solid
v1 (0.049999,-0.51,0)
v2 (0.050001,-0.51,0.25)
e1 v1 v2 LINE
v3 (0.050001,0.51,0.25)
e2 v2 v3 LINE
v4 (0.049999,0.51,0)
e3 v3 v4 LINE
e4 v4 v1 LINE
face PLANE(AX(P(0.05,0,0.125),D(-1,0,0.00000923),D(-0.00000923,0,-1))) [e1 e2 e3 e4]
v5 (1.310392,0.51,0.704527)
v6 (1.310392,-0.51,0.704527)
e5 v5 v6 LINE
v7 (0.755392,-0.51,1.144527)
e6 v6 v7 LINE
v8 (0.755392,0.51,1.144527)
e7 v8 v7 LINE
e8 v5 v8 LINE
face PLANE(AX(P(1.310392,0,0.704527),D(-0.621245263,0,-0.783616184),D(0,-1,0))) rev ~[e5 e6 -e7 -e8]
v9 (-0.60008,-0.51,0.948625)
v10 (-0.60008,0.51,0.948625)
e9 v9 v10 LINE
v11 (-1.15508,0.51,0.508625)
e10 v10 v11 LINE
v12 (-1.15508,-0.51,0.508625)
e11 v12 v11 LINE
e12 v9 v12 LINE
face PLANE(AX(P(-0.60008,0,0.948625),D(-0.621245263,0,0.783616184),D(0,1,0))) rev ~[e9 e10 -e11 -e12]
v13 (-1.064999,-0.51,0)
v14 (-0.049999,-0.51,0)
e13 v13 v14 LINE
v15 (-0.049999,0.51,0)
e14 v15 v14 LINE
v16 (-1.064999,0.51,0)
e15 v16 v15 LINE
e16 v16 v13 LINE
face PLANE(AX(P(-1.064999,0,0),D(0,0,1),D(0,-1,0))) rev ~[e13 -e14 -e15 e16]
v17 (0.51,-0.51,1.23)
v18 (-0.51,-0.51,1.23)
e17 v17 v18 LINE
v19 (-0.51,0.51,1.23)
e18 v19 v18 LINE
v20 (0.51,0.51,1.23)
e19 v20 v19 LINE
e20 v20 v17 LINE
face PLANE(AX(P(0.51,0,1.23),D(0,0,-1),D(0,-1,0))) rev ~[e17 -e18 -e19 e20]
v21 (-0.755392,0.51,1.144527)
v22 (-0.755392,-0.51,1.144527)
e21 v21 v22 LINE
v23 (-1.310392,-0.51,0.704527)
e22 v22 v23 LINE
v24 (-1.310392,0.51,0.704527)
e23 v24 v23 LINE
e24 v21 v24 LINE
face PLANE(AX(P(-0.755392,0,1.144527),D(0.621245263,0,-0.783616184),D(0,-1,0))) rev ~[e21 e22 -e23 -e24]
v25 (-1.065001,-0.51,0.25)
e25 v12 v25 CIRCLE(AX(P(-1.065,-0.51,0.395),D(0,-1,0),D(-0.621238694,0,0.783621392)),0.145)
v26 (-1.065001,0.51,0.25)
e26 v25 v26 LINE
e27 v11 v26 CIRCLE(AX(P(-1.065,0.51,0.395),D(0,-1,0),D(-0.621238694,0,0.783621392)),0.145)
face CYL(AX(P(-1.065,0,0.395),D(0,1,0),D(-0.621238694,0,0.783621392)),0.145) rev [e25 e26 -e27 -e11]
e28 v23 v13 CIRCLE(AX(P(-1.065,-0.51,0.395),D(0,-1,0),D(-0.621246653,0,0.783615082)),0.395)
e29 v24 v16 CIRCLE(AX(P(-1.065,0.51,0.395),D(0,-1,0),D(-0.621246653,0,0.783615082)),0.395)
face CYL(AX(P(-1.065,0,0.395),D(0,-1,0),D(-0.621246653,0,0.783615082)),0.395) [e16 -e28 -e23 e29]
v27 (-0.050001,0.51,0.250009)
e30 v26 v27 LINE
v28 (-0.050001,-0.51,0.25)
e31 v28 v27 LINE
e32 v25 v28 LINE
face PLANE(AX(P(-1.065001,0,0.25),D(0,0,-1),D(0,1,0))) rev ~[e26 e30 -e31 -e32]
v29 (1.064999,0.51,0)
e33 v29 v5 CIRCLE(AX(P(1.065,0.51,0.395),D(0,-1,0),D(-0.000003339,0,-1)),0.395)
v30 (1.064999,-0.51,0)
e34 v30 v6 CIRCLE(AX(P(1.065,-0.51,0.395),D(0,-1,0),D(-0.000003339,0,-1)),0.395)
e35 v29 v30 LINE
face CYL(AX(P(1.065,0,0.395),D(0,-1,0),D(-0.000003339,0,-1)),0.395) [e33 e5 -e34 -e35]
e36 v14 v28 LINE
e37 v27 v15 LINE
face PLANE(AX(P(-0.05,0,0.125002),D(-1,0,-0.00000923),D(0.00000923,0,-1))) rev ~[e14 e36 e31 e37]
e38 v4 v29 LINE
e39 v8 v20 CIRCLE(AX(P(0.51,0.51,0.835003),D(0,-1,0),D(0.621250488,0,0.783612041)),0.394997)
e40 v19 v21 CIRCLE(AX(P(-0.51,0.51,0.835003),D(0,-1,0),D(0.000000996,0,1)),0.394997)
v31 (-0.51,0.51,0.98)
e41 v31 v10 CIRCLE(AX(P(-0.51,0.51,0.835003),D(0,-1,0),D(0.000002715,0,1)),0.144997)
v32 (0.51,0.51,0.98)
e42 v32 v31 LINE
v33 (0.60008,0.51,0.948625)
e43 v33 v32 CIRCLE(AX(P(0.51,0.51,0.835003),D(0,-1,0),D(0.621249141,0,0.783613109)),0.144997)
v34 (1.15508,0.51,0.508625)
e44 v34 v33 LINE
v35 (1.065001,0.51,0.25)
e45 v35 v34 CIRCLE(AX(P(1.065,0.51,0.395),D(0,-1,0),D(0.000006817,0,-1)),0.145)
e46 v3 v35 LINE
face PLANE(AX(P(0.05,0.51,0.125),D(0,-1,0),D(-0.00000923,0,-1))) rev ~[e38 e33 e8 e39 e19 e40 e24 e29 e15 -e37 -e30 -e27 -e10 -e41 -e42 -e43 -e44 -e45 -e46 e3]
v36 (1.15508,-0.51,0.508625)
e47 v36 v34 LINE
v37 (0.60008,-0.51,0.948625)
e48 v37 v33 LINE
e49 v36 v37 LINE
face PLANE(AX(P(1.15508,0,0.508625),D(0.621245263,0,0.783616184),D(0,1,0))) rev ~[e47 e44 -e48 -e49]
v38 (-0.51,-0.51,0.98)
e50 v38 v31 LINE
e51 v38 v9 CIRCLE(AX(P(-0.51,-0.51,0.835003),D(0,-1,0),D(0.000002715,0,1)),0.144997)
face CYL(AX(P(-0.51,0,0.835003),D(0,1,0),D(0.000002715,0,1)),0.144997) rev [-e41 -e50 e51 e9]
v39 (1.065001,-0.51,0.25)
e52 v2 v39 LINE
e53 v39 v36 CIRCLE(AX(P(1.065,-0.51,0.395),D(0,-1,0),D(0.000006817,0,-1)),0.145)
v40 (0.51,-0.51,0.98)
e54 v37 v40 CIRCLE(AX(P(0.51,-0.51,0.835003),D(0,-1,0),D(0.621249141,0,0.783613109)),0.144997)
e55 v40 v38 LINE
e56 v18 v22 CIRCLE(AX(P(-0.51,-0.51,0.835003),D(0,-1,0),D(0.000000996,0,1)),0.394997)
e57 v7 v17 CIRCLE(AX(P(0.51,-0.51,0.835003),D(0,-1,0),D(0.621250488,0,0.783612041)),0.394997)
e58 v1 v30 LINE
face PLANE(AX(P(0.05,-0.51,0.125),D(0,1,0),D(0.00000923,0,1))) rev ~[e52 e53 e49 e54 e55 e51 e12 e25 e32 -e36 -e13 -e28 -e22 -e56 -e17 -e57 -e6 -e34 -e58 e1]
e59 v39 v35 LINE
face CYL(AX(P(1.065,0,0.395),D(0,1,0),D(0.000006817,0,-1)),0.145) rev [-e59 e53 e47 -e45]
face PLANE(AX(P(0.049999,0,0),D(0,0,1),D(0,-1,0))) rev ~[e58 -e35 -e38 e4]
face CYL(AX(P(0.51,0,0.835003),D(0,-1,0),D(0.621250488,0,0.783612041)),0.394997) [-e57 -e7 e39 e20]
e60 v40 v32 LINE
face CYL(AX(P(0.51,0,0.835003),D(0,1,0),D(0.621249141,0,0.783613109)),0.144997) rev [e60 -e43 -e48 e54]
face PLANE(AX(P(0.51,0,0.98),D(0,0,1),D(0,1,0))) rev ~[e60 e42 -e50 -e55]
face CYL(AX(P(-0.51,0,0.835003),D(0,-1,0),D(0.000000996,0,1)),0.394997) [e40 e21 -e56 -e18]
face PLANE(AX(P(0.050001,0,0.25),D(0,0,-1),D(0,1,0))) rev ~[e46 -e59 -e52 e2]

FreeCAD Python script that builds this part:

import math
import FreeCAD as App
import Part
import Sketcher

V = App.Vector


def add_polygon(sketch, points):
    """Adds a closed chain of lines whose ends are joined by coincident constraints."""
    first, n = sketch.GeometryCount, len(points)
    for a, b in zip(points, points[1:] + points[:1]):
        sketch.addGeometry(Part.LineSegment(App.Vector(*a, 0), App.Vector(*b, 0)), False)
    for i in range(n):
        sketch.addConstraint(Sketcher.Constraint("Coincident", first + i, 2, first + (i + 1) % n, 1))

doc = App.newDocument("Part")
params = doc.addObject("Spreadsheet::Sheet", "Params")
for row, (alias, value) in enumerate([
    ("sketch1_width", "1.02 mm"),
    ("sketch1_height", "0.25 mm"),
    ("sketch2_radius", "0.27 mm"),
    ("sketch2_width", "1.02 mm"),
], start=1):
    params.set(f"A{row}", alias)
    params.set(f"B{row}", "=" + value)
    params.setAlias(f"B{row}", alias)

body = doc.addObject("PartDesign::Body", "Body")

sketch1 = body.newObject("Sketcher::SketchObject", "Sketch")
sketch1.AttachmentSupport = (doc.getObject("YZ_Plane"), [""])
sketch1.MapMode = "FlatFace"
add_polygon(sketch1, [(-0.51, 1.23), (-0.51, 0.98), (0.51, 0.98), (0.51, 1.23)])
sketch1.addConstraint([
    Sketcher.Constraint("Vertical", 0),
    Sketcher.Constraint("Horizontal", 1),
    Sketcher.Constraint("Vertical", 2),
    Sketcher.Constraint("Horizontal", 3),
    Sketcher.Constraint("DistanceX", 1, 1, 1, 2, 1.02),
    Sketcher.Constraint("DistanceY", 0, 2, 0, 1, 0.25),
    Sketcher.Constraint("DistanceX", 0, 2, -1, 1, 0.51),
    Sketcher.Constraint("DistanceY", -1, 1, 0, 2, 0.98),
])
sketch1.setExpression("Constraints[8]", "Params.sketch1_width")
sketch1.setExpression("Constraints[9]", "Params.sketch1_height")

sketch2 = body.newObject("Sketcher::SketchObject", "Sketch001")
sketch2.AttachmentSupport = (doc.getObject("XZ_Plane"), [""])
sketch2.MapMode = "FlatFace"
sketch2.addGeometry([
    Part.LineSegment(V(0.05, 0.12, 0), V(1.06, 0.12, 0)),
    Part.ArcOfCircle(Part.Circle(V(1.07, 0.39, 0), V(0, 0, 1), 0.27), math.radians(-90), math.radians(52)),
    Part.LineSegment(V(1.23, 0.61, 0), V(0.68, 1.05, 0)),
    Part.ArcOfCircle(Part.Circle(V(0.51, 0.84, 0), V(0, 0, 1), 0.27), math.radians(52), math.radians(90)),
    Part.LineSegment(V(0.51, 1.1, 0), V(-0.51, 1.1, 0)),
    Part.ArcOfCircle(Part.Circle(V(-0.51, 0.84, 0), V(0, 0, 1), 0.27), math.radians(90), math.radians(128)),
    Part.LineSegment(V(-0.68, 1.05, 0), V(-1.23, 0.61, 0)),
    Part.ArcOfCircle(Part.Circle(V(-1.07, 0.39, 0), V(0, 0, 1), 0.27), math.radians(128), math.radians(270)),
    Part.LineSegment(V(-1.06, 0.12, 0), V(-0.05, 0.12, 0)),
], False)
sketch2.addConstraint([
    Sketcher.Constraint("Tangent", 0, 2, 1, 1),
    Sketcher.Constraint("Tangent", 1, 2, 2, 1),
    Sketcher.Constraint("Coincident", 2, 2, 3, 1),
    Sketcher.Constraint("Tangent", 3, 2, 4, 1),
    Sketcher.Constraint("Tangent", 4, 2, 5, 1),
    Sketcher.Constraint("Coincident", 5, 2, 6, 1),
    Sketcher.Constraint("Tangent", 6, 2, 7, 1),
    Sketcher.Constraint("Tangent", 7, 2, 8, 1),
    Sketcher.Constraint("Horizontal", 0),
    Sketcher.Constraint("Horizontal", 4),
    Sketcher.Constraint("Horizontal", 8),
    Sketcher.Constraint("Equal", 3, 5),
    Sketcher.Constraint("Equal", 1, 7),
    Sketcher.Constraint("Symmetric", 1, 3, 7, 3, -2),
    Sketcher.Constraint("Symmetric", 2, 2, 5, 2, -2),
    Sketcher.Constraint("Equal", 0, 8),
    Sketcher.Constraint("Radius", 1, 0.27),
    Sketcher.Constraint("DistanceX", 4, 2, 4, 1, 1.02),
    Sketcher.Constraint("DistanceX", 8, 2, 0, 1, 0.1),
    Sketcher.Constraint("DistanceX", 0, 1, 0, 2, 1.015),
    Sketcher.Constraint("DistanceY", 1, 2, 2, 2, 0.44),
    Sketcher.Constraint("DistanceY", 1, 3, 3, 2, 0.71),
    Sketcher.Constraint("DistanceY", -1, 1, 1, 3, 0.395),
    Sketcher.Constraint("Radius", 3, 0.269997),
])
sketch2.setExpression("Constraints[16]", "Params.sketch2_radius")
sketch2.setExpression("Constraints[17]", "Params.sketch2_width")
doc.recompute()

additivepipe = body.newObject("PartDesign::AdditivePipe", "AdditivePipe")
additivepipe.Profile = sketch1
additivepipe.Spine = (sketch2, ["Edge1", "Edge2", "Edge3", "Edge4", "Edge5", "Edge6", "Edge7", "Edge8", "Edge9"])

doc.recompute()
